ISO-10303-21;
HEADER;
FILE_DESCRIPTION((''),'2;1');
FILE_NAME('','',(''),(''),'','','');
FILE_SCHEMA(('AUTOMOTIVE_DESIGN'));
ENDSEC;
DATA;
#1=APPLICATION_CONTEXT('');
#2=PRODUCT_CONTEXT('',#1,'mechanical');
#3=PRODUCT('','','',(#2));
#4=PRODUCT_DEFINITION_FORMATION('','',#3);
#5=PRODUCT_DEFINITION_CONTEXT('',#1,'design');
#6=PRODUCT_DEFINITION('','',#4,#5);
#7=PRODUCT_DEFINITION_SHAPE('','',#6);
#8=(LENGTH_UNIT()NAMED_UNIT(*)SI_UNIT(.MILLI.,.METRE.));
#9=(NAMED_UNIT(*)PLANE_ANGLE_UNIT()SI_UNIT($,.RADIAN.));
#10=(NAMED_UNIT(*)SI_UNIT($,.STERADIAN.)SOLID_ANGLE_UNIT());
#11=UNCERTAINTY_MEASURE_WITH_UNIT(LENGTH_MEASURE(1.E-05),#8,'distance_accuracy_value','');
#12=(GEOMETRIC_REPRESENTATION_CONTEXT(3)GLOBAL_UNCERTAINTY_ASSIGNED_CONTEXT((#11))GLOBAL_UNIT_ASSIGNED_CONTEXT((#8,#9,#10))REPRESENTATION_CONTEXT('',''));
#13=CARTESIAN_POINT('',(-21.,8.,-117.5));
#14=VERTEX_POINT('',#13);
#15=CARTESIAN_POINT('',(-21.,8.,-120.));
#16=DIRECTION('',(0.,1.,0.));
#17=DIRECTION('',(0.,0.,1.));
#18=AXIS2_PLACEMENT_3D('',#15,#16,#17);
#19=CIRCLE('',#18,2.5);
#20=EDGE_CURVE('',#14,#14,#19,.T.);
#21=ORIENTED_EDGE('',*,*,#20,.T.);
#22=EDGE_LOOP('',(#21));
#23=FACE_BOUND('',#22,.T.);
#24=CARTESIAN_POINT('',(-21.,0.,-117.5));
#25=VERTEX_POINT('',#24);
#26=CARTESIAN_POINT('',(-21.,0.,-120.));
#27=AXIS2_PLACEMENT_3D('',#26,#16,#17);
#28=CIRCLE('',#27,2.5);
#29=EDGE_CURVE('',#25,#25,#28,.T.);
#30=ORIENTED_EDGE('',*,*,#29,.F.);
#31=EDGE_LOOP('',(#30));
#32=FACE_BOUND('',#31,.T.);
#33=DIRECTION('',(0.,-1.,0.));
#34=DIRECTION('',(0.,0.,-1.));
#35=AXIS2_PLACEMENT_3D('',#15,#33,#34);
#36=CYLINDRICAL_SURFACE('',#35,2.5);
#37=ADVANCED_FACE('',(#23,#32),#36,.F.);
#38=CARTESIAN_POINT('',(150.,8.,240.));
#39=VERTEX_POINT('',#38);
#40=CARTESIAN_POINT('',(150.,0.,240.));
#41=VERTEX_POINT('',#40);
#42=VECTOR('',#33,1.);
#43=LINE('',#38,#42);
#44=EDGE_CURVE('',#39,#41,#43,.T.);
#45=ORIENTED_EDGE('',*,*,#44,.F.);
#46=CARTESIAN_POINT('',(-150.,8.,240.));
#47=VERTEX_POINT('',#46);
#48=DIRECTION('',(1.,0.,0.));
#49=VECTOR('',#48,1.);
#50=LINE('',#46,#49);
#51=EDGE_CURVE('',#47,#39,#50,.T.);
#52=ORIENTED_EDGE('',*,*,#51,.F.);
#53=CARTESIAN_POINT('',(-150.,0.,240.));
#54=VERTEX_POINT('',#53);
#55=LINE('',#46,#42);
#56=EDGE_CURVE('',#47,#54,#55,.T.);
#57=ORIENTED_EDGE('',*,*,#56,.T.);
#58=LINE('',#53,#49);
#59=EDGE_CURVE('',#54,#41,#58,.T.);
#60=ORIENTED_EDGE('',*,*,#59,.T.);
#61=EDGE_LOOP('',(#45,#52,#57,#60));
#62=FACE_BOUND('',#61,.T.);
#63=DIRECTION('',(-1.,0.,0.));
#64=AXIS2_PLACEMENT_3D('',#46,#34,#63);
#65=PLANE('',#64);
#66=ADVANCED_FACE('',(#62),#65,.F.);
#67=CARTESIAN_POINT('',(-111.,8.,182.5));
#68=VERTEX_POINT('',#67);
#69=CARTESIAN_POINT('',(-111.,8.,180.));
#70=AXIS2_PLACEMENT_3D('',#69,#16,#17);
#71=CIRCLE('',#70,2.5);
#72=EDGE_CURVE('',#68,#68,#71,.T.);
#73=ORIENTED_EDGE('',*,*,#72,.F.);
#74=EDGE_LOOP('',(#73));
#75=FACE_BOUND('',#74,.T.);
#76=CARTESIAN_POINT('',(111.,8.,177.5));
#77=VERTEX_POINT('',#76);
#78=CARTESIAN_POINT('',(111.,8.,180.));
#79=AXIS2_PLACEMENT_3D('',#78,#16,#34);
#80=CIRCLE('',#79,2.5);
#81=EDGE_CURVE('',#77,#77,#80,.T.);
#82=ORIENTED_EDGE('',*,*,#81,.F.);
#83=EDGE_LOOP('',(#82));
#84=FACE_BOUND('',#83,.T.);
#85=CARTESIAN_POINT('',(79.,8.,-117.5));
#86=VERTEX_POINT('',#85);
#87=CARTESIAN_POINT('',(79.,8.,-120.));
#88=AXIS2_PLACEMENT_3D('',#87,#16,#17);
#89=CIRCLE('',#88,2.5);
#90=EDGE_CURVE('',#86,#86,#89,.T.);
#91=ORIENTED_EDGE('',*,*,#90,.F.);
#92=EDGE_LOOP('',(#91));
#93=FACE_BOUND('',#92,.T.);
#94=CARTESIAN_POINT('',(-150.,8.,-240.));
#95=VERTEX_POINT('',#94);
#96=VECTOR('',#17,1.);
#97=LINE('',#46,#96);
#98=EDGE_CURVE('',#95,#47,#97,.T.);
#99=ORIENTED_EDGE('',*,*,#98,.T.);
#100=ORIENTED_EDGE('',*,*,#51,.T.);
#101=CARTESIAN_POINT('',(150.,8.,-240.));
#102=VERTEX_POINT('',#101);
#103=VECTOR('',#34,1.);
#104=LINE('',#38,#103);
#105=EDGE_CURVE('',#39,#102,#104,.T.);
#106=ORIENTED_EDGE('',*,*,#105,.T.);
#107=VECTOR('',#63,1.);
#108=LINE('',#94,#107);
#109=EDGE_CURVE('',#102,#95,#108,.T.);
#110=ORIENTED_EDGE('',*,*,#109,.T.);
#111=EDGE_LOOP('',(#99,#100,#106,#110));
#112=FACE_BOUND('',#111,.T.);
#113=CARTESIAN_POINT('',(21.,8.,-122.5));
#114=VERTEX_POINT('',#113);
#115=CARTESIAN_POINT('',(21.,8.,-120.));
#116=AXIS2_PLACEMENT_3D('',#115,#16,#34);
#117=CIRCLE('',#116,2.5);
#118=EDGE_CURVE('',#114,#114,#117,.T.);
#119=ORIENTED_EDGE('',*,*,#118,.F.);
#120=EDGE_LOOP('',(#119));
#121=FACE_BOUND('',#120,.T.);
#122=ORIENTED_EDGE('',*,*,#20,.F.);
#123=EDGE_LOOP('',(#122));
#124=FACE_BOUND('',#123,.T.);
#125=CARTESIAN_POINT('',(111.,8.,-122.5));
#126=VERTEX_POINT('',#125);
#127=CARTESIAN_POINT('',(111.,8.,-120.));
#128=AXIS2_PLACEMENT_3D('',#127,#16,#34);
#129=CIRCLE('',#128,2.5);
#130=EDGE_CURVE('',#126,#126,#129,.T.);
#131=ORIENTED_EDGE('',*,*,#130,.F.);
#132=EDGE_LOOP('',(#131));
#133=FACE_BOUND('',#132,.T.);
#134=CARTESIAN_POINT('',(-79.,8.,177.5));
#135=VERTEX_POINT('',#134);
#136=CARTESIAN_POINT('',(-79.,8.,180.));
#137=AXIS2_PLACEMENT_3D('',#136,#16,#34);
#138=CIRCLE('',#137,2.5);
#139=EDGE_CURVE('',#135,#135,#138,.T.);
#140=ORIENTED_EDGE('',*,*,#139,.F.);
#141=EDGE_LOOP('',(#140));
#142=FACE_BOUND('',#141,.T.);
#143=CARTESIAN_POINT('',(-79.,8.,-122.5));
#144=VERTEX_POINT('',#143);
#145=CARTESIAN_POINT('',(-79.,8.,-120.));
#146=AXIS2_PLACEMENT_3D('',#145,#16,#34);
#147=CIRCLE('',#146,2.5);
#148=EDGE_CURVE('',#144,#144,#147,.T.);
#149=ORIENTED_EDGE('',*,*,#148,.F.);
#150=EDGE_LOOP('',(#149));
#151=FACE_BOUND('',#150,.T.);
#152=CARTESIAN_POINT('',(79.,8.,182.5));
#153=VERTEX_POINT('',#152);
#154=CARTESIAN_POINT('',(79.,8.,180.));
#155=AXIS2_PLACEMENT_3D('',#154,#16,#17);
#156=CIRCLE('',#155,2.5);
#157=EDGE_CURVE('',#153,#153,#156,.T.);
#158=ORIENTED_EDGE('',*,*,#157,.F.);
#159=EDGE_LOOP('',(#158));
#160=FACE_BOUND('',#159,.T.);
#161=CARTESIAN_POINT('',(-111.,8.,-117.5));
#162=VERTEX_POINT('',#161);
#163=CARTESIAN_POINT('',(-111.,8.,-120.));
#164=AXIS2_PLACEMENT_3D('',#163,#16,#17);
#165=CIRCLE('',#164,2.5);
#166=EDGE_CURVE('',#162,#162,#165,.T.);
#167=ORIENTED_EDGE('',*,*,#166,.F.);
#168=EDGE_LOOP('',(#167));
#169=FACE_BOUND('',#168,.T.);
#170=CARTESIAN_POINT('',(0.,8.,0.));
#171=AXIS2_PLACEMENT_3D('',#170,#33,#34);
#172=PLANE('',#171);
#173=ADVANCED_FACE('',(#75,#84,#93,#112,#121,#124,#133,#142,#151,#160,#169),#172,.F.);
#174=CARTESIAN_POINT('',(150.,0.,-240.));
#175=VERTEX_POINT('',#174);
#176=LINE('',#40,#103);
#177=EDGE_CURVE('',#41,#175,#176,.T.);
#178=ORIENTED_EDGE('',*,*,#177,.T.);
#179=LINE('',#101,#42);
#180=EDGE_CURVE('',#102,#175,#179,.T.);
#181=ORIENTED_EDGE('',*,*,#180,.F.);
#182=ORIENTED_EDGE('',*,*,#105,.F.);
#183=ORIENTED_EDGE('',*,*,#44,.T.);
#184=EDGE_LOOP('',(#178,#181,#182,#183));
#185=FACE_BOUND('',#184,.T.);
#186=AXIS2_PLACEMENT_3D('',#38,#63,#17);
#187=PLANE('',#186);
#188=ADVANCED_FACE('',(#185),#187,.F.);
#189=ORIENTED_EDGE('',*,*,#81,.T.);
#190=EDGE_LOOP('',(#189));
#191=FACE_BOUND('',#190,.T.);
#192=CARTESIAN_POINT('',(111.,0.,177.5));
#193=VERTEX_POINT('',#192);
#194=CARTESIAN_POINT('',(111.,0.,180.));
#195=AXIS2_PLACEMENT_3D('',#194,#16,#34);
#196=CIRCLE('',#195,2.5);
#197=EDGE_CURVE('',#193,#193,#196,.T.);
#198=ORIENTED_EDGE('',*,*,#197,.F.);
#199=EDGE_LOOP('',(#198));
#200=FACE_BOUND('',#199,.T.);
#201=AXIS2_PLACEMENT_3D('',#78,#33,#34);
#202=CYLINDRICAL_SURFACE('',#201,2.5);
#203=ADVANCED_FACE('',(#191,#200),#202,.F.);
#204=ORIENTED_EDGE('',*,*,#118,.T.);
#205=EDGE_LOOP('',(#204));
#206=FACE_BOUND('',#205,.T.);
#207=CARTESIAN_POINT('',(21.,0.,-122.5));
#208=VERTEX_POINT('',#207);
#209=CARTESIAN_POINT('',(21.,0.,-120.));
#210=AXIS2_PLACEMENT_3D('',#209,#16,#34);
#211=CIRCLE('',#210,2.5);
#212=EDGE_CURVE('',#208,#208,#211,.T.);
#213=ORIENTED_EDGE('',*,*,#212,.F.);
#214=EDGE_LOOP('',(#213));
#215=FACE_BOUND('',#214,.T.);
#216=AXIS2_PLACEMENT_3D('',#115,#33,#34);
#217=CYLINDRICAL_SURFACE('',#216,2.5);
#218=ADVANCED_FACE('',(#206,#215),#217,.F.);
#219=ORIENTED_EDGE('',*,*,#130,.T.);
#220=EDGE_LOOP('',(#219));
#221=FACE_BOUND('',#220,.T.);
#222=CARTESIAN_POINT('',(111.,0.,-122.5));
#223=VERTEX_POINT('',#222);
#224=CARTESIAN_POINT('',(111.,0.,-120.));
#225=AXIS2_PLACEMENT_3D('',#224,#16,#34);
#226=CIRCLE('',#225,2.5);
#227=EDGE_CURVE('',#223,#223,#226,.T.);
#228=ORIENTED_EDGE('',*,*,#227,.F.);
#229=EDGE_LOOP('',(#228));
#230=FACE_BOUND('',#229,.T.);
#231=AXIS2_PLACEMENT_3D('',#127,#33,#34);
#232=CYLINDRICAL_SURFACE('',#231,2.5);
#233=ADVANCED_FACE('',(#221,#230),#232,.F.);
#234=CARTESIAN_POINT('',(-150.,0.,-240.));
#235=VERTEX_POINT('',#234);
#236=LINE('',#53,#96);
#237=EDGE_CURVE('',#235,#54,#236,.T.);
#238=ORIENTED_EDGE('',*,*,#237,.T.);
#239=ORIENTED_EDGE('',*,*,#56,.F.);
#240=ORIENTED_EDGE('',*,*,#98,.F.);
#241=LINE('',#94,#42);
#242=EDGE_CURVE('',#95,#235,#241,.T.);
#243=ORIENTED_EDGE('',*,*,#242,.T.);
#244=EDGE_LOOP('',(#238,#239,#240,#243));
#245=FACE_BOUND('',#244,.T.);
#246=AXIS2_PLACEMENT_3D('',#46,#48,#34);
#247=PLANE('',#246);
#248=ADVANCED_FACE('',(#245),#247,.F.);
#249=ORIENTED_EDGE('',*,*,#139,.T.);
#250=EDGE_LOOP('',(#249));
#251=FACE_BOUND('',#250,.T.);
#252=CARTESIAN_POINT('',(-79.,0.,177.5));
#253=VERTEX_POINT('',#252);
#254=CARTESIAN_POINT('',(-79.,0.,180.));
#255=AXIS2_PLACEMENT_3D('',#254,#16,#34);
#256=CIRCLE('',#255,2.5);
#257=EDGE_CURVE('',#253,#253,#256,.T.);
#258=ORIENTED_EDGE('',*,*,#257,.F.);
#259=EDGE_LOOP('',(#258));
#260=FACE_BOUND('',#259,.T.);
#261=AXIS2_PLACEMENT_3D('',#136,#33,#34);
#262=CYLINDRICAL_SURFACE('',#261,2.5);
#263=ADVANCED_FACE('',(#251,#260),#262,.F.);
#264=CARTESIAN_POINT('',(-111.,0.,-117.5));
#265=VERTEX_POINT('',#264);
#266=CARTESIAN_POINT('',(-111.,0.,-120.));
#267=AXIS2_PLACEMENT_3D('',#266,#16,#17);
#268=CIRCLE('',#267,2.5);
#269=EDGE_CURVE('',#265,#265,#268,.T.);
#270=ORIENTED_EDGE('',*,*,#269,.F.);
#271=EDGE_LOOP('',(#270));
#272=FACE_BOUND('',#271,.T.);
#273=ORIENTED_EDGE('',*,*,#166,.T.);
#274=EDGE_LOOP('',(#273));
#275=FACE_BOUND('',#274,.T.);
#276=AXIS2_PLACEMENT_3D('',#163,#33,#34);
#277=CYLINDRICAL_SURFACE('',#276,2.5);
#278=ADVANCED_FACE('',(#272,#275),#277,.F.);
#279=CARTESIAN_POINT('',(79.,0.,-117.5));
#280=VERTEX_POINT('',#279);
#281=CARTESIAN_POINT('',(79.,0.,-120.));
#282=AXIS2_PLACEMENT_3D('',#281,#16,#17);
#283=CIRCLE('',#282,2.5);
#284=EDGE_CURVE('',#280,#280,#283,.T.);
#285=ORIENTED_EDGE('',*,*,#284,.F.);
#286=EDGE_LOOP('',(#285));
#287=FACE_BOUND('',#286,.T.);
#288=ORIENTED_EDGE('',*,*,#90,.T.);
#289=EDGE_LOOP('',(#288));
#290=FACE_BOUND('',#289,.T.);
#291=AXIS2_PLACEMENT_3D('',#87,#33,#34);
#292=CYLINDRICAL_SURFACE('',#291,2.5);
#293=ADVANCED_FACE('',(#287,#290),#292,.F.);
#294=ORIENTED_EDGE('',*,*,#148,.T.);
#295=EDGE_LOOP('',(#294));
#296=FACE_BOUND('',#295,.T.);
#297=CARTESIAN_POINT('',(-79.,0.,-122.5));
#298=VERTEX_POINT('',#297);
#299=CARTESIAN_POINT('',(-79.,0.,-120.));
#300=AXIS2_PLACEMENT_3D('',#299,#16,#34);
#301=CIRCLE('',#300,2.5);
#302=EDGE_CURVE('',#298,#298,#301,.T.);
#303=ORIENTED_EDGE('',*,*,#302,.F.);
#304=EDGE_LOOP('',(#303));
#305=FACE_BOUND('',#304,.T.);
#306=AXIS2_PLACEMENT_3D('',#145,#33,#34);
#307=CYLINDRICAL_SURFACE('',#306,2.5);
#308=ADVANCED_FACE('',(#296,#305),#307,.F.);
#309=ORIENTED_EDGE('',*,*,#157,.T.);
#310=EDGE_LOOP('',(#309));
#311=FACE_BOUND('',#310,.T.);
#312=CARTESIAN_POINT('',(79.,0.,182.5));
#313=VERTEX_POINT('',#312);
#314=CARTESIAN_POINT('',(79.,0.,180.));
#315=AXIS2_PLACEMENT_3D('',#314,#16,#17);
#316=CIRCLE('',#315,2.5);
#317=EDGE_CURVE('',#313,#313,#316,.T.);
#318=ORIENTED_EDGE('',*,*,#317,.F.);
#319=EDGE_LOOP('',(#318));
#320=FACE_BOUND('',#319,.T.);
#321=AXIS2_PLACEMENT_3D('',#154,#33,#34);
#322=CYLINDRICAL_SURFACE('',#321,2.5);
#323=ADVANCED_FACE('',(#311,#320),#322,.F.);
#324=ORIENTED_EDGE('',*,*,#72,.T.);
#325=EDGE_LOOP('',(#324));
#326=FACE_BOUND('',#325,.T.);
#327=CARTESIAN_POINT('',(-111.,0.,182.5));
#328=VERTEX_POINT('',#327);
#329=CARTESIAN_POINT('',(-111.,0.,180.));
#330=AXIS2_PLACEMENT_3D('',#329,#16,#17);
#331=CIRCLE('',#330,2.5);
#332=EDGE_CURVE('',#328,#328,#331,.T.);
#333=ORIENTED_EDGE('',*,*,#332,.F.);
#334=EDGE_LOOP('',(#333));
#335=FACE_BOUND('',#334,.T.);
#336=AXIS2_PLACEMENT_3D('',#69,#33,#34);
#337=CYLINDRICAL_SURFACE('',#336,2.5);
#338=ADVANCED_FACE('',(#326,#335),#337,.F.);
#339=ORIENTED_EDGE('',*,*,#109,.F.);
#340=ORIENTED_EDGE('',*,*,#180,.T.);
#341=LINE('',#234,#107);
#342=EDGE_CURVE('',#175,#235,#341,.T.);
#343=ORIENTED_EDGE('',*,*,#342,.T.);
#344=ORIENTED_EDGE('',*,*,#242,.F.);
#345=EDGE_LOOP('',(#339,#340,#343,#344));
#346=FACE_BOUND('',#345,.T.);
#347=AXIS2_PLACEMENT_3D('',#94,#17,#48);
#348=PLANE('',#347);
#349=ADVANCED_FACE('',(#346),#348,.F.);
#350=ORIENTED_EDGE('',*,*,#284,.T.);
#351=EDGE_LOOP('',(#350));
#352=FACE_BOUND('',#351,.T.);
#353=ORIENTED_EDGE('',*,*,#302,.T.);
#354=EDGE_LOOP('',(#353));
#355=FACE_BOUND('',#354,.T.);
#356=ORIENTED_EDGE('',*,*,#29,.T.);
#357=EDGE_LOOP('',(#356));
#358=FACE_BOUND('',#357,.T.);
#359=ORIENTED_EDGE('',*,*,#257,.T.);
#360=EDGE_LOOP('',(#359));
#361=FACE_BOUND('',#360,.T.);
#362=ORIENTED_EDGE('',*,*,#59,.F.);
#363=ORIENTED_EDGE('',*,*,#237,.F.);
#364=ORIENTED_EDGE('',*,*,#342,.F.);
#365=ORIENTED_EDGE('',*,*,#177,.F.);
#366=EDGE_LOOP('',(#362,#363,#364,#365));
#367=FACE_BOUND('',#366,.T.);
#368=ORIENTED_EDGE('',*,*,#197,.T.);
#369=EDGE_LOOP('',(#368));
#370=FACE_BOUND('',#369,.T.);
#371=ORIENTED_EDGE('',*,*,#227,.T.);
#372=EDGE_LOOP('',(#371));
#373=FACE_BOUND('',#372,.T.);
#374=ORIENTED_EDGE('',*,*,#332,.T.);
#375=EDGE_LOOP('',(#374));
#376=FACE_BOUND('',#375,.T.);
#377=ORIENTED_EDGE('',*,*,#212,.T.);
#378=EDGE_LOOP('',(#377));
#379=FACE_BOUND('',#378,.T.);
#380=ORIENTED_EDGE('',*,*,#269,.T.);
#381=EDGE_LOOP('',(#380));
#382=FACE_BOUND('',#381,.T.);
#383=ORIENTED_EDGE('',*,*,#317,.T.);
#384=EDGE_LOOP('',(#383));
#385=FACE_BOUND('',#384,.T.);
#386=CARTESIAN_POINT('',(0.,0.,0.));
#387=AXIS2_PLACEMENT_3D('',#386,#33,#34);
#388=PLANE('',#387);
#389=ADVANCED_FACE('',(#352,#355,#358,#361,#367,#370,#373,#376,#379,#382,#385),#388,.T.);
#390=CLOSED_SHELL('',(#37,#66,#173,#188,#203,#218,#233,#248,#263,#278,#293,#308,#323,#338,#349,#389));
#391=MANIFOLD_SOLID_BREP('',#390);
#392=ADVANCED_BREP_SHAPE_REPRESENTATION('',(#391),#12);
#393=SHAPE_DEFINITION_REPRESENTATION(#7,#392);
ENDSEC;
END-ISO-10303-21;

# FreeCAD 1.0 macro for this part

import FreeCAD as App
import Part
import Sketcher
from FreeCAD import Vector

doc = App.newDocument("Part")
params = doc.addObject("Spreadsheet::Sheet", "Params")
for row, (alias, value) in enumerate([
    ("sketch1_diameter", "5 mm"),
    ("sketch1_width", "300 mm"),
    ("sketch1_height", "480 mm"),
    ("pad1_length", "8 mm"),
], start=1):
    params.set(f"A{row}", alias)
    params.set(f"B{row}", "=" + value)
    params.setAlias(f"B{row}", alias)

body = doc.addObject("PartDesign::Body", "Body")

sketch1 = body.newObject("Sketcher::SketchObject", "Sketch")
sketch1.AttachmentSupport = (doc.getObject("XZ_Plane"), [""])
sketch1.MapMode = "FlatFace"
sketch1.addGeometry([
    Part.LineSegment(Vector(-150, -240, 0), Vector(-150, 240, 0)),
    Part.LineSegment(Vector(-150, 240, 0), Vector(150, 240, 0)),
    Part.LineSegment(Vector(150, 240, 0), Vector(150, -240, 0)),
    Part.LineSegment(Vector(150, -240, 0), Vector(-150, -240, 0)),
    Part.Circle(Vector(-111, 180, 0), Vector(0, 0, 1), 2.5),
    Part.Circle(Vector(-79, 180, 0), Vector(0, 0, 1), 2.5),
    Part.Circle(Vector(79, 180, 0), Vector(0, 0, 1), 2.5),
    Part.Circle(Vector(111, 180, 0), Vector(0, 0, 1), 2.5),
    Part.Circle(Vector(-111, -120, 0), Vector(0, 0, 1), 2.5),
    Part.Circle(Vector(-79, -120, 0), Vector(0, 0, 1), 2.5),
    Part.Circle(Vector(-21, -120, 0), Vector(0, 0, 1), 2.5),
    Part.Circle(Vector(21, -120, 0), Vector(0, 0, 1), 2.5),
    Part.Circle(Vector(79, -120, 0), Vector(0, 0, 1), 2.5),
    Part.Circle(Vector(111, -120, 0), Vector(0, 0, 1), 2.5),
], False)
sketch1.addConstraint([
    Sketcher.Constraint("Coincident", 0, 2, 1, 1),
    Sketcher.Constraint("Coincident", 1, 2, 2, 1),
    Sketcher.Constraint("Coincident", 2, 2, 3, 1),
    Sketcher.Constraint("Coincident", 3, 2, 0, 1),
    Sketcher.Constraint("Vertical", 0),
    Sketcher.Constraint("Horizontal", 1),
    Sketcher.Constraint("Vertical", 2),
    Sketcher.Constraint("Horizontal", 3),
    Sketcher.Constraint("Equal", 4, 5),
    Sketcher.Constraint("Equal", 5, 6),
    Sketcher.Constraint("Equal", 6, 7),
    Sketcher.Constraint("Equal", 7, 8),
    Sketcher.Constraint("Equal", 8, 9),
    Sketcher.Constraint("Equal", 9, 10),
    Sketcher.Constraint("Equal", 10, 11),
    Sketcher.Constraint("Equal", 11, 12),
    Sketcher.Constraint("Equal", 12, 13),
    Sketcher.Constraint("Symmetric", 0, 2, 2, 2, -1, 1),
    Sketcher.Constraint("Symmetric", 5, 3, 6, 3, -2),
    Sketcher.Constraint("Symmetric", 4, 3, 7, 3, -2),
    Sketcher.Constraint("Symmetric", 10, 3, 11, 3, -2),
    Sketcher.Constraint("Symmetric", 9, 3, 12, 3, -2),
    Sketcher.Constraint("Symmetric", 8, 3, 13, 3, -2),
    Sketcher.Constraint("Horizontal", 4, 3, 5, 3),
    Sketcher.Constraint("Horizontal", 8, 3, 9, 3),
    Sketcher.Constraint("Horizontal", 9, 3, 10, 3),
    Sketcher.Constraint("Vertical", 4, 3, 8, 3),
    Sketcher.Constraint("Vertical", 5, 3, 9, 3),
    Sketcher.Constraint("Diameter", 4, 5.0),
    Sketcher.Constraint("DistanceX", 1, 1, 1, 2, 300.0),
    Sketcher.Constraint("DistanceY", 0, 1, 0, 2, 480.0),
    Sketcher.Constraint("DistanceX", 4, 3, -1, 1, 111.0),
    Sketcher.Constraint("DistanceY", -1, 1, 4, 3, 180.0),
    Sketcher.Constraint("DistanceX", 5, 3, -1, 1, 79.0),
    Sketcher.Constraint("DistanceY", 8, 3, -1, 1, 120.0),
    Sketcher.Constraint("DistanceX", 10, 3, -1, 1, 21.0),
])
sketch1.setExpression("Constraints[28]", "Params.sketch1_diameter")
sketch1.setExpression("Constraints[29]", "Params.sketch1_width")
sketch1.setExpression("Constraints[30]", "Params.sketch1_height")
pad1 = body.newObject("PartDesign::Pad", "Pad")
pad1.Profile = sketch1
pad1.setExpression("Length", "Params.pad1_length")
pad1.Reversed = True

doc.recompute()
